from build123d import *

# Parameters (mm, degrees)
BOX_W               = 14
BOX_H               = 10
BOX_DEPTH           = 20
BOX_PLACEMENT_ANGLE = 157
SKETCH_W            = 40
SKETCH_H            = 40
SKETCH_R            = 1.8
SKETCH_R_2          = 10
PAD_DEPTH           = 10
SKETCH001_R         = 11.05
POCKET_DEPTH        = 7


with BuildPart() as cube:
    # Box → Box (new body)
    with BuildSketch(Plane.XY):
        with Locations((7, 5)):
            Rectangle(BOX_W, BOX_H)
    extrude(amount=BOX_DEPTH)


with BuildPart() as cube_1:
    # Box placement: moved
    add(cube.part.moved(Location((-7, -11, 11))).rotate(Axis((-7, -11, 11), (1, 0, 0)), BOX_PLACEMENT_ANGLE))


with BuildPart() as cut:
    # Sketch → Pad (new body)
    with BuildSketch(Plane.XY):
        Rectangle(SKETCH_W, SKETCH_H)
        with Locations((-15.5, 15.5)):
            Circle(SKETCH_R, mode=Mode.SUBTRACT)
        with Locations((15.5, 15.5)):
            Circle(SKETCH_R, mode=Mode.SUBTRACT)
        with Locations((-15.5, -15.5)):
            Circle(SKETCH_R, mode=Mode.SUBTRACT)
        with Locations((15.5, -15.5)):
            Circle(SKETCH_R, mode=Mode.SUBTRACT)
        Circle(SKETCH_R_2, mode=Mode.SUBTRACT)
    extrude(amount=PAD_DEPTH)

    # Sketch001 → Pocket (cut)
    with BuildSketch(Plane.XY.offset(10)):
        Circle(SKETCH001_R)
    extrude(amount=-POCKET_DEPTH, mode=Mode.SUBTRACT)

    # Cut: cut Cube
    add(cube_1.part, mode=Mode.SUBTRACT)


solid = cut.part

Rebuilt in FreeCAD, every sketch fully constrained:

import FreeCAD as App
import Part
import Sketcher

V = App.Vector

doc = App.newDocument("Part")
body = doc.addObject("PartDesign::Body", "Body")

# Sketch on XY plane
sketch1 = doc.addObject("Sketcher::SketchObject", "Sketch")
body.addObject(sketch1)
sketch1.AttachmentSupport = (doc.XY_Plane, [""])
sketch1.MapMode = "FlatFace"
sketch1.addGeometry(Part.LineSegment(V(0, 10, 0), V(0, 0, 0)), False)
sketch1.addGeometry(Part.LineSegment(V(0, 0, 0), V(14, 0, 0)), False)
sketch1.addGeometry(Part.LineSegment(V(14, 0, 0), V(14, 10, 0)), False)
sketch1.addGeometry(Part.LineSegment(V(14, 10, 0), V(0, 10, 0)), False)
sketch1.addConstraint(Sketcher.Constraint("Coincident", 0, 2, 1, 1))
sketch1.addConstraint(Sketcher.Constraint("Coincident", 1, 2, 2, 1))
sketch1.addConstraint(Sketcher.Constraint("Coincident", 2, 2, 3, 1))
sketch1.addConstraint(Sketcher.Constraint("Coincident", 3, 2, 0, 1))
sketch1.addConstraint(Sketcher.Constraint("Vertical", 0))
sketch1.addConstraint(Sketcher.Constraint("Horizontal", 1))
sketch1.addConstraint(Sketcher.Constraint("Vertical", 2))
sketch1.addConstraint(Sketcher.Constraint("Horizontal", 3))
sketch1.addConstraint(Sketcher.Constraint("Coincident", 0, 2, -1, 1))
sketch1.addConstraint(Sketcher.Constraint("DistanceX", 1, 1, 1, 2, 14.0))
sketch1.addConstraint(Sketcher.Constraint("DistanceY", 0, 2, 0, 1, 10.0))
pad1 = doc.addObject("PartDesign::Pad", "Pad")
body.addObject(pad1)
pad1.Profile = sketch1
pad1.Length = 20
body2 = doc.addObject("PartDesign::Body", "Body001")
doc.recompute()

body.Placement = App.Placement(V(-7, -11, 11), App.Rotation(V(1, 0, 0), 157))
boolean = doc.addObject("PartDesign::Boolean", "Boolean")
body2.addObject(boolean)
boolean.Type = "Fuse"
boolean.addObjects([body])
body3 = doc.addObject("PartDesign::Body", "Body002")

# Sketch on XY plane
sketch2 = doc.addObject("Sketcher::SketchObject", "Sketch001")
body3.addObject(sketch2)
sketch2.AttachmentSupport = (doc.getObject("XY_Plane002"), [""])
sketch2.MapMode = "FlatFace"
sketch2.addGeometry(Part.LineSegment(V(-20, 20, 0), V(-20, -20, 0)), False)
sketch2.addGeometry(Part.LineSegment(V(-20, -20, 0), V(20, -20, 0)), False)
sketch2.addGeometry(Part.LineSegment(V(20, -20, 0), V(20, 20, 0)), False)
sketch2.addGeometry(Part.LineSegment(V(20, 20, 0), V(-20, 20, 0)), False)
sketch2.addGeometry(Part.Circle(V(-15.5, -15.5, 0), V(0, 0, 1), 1.8), False)
sketch2.addGeometry(Part.Circle(V(15.5, -15.5, 0), V(0, 0, 1), 1.8), False)
sketch2.addGeometry(Part.Circle(V(-15.5, 15.5, 0), V(0, 0, 1), 1.8), False)
sketch2.addGeometry(Part.Circle(V(0, 0, 0), V(0, 0, 1), 10), False)
sketch2.addGeometry(Part.Circle(V(15.5, 15.5, 0), V(0, 0, 1), 1.8), False)
sketch2.addConstraint(Sketcher.Constraint("Coincident", 0, 2, 1, 1))
sketch2.addConstraint(Sketcher.Constraint("Coincident", 1, 2, 2, 1))
sketch2.addConstraint(Sketcher.Constraint("Coincident", 2, 2, 3, 1))
sketch2.addConstraint(Sketcher.Constraint("Coincident", 3, 2, 0, 1))
sketch2.addConstraint(Sketcher.Constraint("Vertical", 0))
sketch2.addConstraint(Sketcher.Constraint("Horizontal", 1))
sketch2.addConstraint(Sketcher.Constraint("Vertical", 2))
sketch2.addConstraint(Sketcher.Constraint("Horizontal", 3))
sketch2.addConstraint(Sketcher.Constraint("Coincident", 7, 3, -1, 1))
sketch2.addConstraint(Sketcher.Constraint("Equal", 4, 5))
sketch2.addConstraint(Sketcher.Constraint("Equal", 5, 6))
sketch2.addConstraint(Sketcher.Constraint("Equal", 6, 8))
sketch2.addConstraint(Sketcher.Constraint("Symmetric", 5, 3, 6, 3, -1, 1))
sketch2.addConstraint(Sketcher.Constraint("Symmetric", 4, 3, 8, 3, -1, 1))
sketch2.addConstraint(Sketcher.Constraint("Symmetric", 0, 2, 2, 2, -1, 1))
sketch2.addConstraint(Sketcher.Constraint("Symmetric", 4, 3, 5, 3, -2))
sketch2.addConstraint(Sketcher.Constraint("Equal", 3, 0))
sketch2.addConstraint(Sketcher.Constraint("Diameter", 7, 20.0))
sketch2.addConstraint(Sketcher.Constraint("Diameter", 4, 3.6))
sketch2.addConstraint(Sketcher.Constraint("DistanceX", 1, 1, 1, 2, 40.0))
sketch2.addConstraint(Sketcher.Constraint("DistanceX", 4, 3, 5, 3, 31.0))
sketch2.addConstraint(Sketcher.Constraint("DistanceY", 4, 3, 6, 3, 31.0))
pad2 = doc.addObject("PartDesign::Pad", "Pad001")
body3.addObject(pad2)
pad2.Profile = sketch2
pad2.Length = 10

# Sketch on XY plane
sketch3 = doc.addObject("Sketcher::SketchObject", "Sketch002")
body3.addObject(sketch3)
sketch3.AttachmentSupport = (doc.getObject("XY_Plane002"), [""])
sketch3.MapMode = "FlatFace"
sketch3.AttachmentOffset = App.Placement(V(0, 0, 10), App.Rotation())
sketch3.addGeometry(Part.Circle(V(0, 0, 0), V(0, 0, 1), 11.05), False)
sketch3.addConstraint(Sketcher.Constraint("Coincident", 0, 3, -1, 1))
sketch3.addConstraint(Sketcher.Constraint("Diameter", 0, 22.1))
pocket1 = doc.addObject("PartDesign::Pocket", "Pocket")
body3.addObject(pocket1)
pocket1.Profile = sketch3
pocket1.Length = 7
doc.recompute()

boolean2 = doc.addObject("PartDesign::Boolean", "Boolean001")
body3.addObject(boolean2)
boolean2.Type = "Cut"
boolean2.addObjects([body2])

doc.recompute()
